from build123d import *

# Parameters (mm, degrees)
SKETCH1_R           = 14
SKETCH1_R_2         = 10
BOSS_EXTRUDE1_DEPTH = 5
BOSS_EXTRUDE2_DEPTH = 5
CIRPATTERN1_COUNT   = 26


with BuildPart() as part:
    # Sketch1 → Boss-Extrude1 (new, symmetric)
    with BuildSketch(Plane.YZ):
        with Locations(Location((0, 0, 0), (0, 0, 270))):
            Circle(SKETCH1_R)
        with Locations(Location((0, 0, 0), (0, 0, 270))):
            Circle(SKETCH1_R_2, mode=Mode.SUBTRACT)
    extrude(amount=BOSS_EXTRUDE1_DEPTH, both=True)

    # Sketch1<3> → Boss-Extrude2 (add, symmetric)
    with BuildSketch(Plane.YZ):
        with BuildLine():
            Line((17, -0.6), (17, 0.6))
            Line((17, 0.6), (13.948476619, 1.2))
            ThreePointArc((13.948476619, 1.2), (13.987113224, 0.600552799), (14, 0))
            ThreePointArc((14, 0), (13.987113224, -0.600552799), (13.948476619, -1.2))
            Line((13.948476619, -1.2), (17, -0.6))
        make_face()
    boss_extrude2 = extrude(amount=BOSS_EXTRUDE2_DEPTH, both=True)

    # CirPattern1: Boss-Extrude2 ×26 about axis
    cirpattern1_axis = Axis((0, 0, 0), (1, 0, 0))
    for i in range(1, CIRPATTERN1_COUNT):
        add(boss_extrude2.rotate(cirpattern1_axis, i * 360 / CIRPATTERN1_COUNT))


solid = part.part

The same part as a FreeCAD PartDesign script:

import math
import FreeCAD as App
import Part
import Sketcher

doc = App.newDocument("Part")
body = doc.addObject("PartDesign::Body", "Body")

sketch1 = body.newObject("Sketcher::SketchObject", "Sketch")
sketch1.AttachmentSupport = (doc.getObject("YZ_Plane"), [""])
sketch1.MapMode = "FlatFace"
sketch1.addGeometry(Part.Circle(App.Vector(0, 0, 0), App.Vector(0, 0, 1), 14), False)
sketch1.addGeometry(Part.Circle(App.Vector(0, 0, 0), App.Vector(0, 0, 1), 10), False)
sketch1.addConstraint(Sketcher.Constraint("Coincident", 0, 3, -1, 1))
sketch1.addConstraint(Sketcher.Constraint("Coincident", 1, 3, -1, 1))
sketch1.addConstraint(Sketcher.Constraint("Diameter", 0, 28.0))
sketch1.addConstraint(Sketcher.Constraint("Diameter", 1, 20.0))
pad1 = body.newObject("PartDesign::Pad", "Pad")
pad1.Profile = sketch1
pad1.Length = 10
pad1.Midplane = True

sketch2 = body.newObject("Sketcher::SketchObject", "Sketch001")
sketch2.AttachmentSupport = (doc.getObject("YZ_Plane"), [""])
sketch2.MapMode = "FlatFace"
sketch2.addGeometry(Part.LineSegment(App.Vector(17, -0.6, 0), App.Vector(17, 0.6, 0)), False)
sketch2.addGeometry(Part.LineSegment(App.Vector(17, 0.6, 0), App.Vector(13.9, 1.2, 0)), False)
sketch2.addGeometry(Part.ArcOfCircle(Part.Circle(App.Vector(0, 0, 0), App.Vector(0, 0, 1), 14), math.radians(0), math.radians(4.92)), False)
sketch2.addGeometry(Part.ArcOfCircle(Part.Circle(App.Vector(0, 0, 0), App.Vector(0, 0, 1), 14), math.radians(-4.92), math.radians(0)), False)
sketch2.addGeometry(Part.LineSegment(App.Vector(13.9, -1.2, 0), App.Vector(17, -0.6, 0)), False)
sketch2.addConstraint(Sketcher.Constraint("Coincident", 0, 2, 1, 1))
sketch2.addConstraint(Sketcher.Constraint("Coincident", 1, 2, 2, 2))
sketch2.addConstraint(Sketcher.Constraint("Tangent", 2, 1, 3, 2))
sketch2.addConstraint(Sketcher.Constraint("Coincident", 3, 1, 4, 1))
sketch2.addConstraint(Sketcher.Constraint("Coincident", 4, 2, 0, 1))
sketch2.addConstraint(Sketcher.Constraint("Vertical", 0))
sketch2.addConstraint(Sketcher.Constraint("Coincident", 2, 3, -1, 1))
sketch2.addConstraint(Sketcher.Constraint("Equal", 2, 3))
sketch2.addConstraint(Sketcher.Constraint("PointOnObject", 2, 1, -1))
sketch2.addConstraint(Sketcher.Constraint("Vertical", 1, 2, 3, 1))
sketch2.addConstraint(Sketcher.Constraint("Equal", 1, 4))
sketch2.addConstraint(Sketcher.Constraint("Radius", 2, 14.0))
sketch2.addConstraint(Sketcher.Constraint("DistanceY", 0, 1, 0, 2, 1.2))
sketch2.addConstraint(Sketcher.Constraint("DistanceX", -1, 1, 0, 2, 17.0))
sketch2.addConstraint(Sketcher.Constraint("DistanceY", -1, 1, 1, 2, 1.2))
pad2 = body.newObject("PartDesign::Pad", "Pad001")
pad2.Profile = sketch2
pad2.Length = 10
pad2.Midplane = True
doc.recompute()

polarpattern = body.newObject("PartDesign::PolarPattern", "PolarPattern")
polarpattern.Originals = [pad2]
polarpattern.Axis = (doc.getObject("X_Axis"), [""])
polarpattern.Angle = 360
polarpattern.Occurrences = 26
body.Tip = polarpattern

doc.recompute()
